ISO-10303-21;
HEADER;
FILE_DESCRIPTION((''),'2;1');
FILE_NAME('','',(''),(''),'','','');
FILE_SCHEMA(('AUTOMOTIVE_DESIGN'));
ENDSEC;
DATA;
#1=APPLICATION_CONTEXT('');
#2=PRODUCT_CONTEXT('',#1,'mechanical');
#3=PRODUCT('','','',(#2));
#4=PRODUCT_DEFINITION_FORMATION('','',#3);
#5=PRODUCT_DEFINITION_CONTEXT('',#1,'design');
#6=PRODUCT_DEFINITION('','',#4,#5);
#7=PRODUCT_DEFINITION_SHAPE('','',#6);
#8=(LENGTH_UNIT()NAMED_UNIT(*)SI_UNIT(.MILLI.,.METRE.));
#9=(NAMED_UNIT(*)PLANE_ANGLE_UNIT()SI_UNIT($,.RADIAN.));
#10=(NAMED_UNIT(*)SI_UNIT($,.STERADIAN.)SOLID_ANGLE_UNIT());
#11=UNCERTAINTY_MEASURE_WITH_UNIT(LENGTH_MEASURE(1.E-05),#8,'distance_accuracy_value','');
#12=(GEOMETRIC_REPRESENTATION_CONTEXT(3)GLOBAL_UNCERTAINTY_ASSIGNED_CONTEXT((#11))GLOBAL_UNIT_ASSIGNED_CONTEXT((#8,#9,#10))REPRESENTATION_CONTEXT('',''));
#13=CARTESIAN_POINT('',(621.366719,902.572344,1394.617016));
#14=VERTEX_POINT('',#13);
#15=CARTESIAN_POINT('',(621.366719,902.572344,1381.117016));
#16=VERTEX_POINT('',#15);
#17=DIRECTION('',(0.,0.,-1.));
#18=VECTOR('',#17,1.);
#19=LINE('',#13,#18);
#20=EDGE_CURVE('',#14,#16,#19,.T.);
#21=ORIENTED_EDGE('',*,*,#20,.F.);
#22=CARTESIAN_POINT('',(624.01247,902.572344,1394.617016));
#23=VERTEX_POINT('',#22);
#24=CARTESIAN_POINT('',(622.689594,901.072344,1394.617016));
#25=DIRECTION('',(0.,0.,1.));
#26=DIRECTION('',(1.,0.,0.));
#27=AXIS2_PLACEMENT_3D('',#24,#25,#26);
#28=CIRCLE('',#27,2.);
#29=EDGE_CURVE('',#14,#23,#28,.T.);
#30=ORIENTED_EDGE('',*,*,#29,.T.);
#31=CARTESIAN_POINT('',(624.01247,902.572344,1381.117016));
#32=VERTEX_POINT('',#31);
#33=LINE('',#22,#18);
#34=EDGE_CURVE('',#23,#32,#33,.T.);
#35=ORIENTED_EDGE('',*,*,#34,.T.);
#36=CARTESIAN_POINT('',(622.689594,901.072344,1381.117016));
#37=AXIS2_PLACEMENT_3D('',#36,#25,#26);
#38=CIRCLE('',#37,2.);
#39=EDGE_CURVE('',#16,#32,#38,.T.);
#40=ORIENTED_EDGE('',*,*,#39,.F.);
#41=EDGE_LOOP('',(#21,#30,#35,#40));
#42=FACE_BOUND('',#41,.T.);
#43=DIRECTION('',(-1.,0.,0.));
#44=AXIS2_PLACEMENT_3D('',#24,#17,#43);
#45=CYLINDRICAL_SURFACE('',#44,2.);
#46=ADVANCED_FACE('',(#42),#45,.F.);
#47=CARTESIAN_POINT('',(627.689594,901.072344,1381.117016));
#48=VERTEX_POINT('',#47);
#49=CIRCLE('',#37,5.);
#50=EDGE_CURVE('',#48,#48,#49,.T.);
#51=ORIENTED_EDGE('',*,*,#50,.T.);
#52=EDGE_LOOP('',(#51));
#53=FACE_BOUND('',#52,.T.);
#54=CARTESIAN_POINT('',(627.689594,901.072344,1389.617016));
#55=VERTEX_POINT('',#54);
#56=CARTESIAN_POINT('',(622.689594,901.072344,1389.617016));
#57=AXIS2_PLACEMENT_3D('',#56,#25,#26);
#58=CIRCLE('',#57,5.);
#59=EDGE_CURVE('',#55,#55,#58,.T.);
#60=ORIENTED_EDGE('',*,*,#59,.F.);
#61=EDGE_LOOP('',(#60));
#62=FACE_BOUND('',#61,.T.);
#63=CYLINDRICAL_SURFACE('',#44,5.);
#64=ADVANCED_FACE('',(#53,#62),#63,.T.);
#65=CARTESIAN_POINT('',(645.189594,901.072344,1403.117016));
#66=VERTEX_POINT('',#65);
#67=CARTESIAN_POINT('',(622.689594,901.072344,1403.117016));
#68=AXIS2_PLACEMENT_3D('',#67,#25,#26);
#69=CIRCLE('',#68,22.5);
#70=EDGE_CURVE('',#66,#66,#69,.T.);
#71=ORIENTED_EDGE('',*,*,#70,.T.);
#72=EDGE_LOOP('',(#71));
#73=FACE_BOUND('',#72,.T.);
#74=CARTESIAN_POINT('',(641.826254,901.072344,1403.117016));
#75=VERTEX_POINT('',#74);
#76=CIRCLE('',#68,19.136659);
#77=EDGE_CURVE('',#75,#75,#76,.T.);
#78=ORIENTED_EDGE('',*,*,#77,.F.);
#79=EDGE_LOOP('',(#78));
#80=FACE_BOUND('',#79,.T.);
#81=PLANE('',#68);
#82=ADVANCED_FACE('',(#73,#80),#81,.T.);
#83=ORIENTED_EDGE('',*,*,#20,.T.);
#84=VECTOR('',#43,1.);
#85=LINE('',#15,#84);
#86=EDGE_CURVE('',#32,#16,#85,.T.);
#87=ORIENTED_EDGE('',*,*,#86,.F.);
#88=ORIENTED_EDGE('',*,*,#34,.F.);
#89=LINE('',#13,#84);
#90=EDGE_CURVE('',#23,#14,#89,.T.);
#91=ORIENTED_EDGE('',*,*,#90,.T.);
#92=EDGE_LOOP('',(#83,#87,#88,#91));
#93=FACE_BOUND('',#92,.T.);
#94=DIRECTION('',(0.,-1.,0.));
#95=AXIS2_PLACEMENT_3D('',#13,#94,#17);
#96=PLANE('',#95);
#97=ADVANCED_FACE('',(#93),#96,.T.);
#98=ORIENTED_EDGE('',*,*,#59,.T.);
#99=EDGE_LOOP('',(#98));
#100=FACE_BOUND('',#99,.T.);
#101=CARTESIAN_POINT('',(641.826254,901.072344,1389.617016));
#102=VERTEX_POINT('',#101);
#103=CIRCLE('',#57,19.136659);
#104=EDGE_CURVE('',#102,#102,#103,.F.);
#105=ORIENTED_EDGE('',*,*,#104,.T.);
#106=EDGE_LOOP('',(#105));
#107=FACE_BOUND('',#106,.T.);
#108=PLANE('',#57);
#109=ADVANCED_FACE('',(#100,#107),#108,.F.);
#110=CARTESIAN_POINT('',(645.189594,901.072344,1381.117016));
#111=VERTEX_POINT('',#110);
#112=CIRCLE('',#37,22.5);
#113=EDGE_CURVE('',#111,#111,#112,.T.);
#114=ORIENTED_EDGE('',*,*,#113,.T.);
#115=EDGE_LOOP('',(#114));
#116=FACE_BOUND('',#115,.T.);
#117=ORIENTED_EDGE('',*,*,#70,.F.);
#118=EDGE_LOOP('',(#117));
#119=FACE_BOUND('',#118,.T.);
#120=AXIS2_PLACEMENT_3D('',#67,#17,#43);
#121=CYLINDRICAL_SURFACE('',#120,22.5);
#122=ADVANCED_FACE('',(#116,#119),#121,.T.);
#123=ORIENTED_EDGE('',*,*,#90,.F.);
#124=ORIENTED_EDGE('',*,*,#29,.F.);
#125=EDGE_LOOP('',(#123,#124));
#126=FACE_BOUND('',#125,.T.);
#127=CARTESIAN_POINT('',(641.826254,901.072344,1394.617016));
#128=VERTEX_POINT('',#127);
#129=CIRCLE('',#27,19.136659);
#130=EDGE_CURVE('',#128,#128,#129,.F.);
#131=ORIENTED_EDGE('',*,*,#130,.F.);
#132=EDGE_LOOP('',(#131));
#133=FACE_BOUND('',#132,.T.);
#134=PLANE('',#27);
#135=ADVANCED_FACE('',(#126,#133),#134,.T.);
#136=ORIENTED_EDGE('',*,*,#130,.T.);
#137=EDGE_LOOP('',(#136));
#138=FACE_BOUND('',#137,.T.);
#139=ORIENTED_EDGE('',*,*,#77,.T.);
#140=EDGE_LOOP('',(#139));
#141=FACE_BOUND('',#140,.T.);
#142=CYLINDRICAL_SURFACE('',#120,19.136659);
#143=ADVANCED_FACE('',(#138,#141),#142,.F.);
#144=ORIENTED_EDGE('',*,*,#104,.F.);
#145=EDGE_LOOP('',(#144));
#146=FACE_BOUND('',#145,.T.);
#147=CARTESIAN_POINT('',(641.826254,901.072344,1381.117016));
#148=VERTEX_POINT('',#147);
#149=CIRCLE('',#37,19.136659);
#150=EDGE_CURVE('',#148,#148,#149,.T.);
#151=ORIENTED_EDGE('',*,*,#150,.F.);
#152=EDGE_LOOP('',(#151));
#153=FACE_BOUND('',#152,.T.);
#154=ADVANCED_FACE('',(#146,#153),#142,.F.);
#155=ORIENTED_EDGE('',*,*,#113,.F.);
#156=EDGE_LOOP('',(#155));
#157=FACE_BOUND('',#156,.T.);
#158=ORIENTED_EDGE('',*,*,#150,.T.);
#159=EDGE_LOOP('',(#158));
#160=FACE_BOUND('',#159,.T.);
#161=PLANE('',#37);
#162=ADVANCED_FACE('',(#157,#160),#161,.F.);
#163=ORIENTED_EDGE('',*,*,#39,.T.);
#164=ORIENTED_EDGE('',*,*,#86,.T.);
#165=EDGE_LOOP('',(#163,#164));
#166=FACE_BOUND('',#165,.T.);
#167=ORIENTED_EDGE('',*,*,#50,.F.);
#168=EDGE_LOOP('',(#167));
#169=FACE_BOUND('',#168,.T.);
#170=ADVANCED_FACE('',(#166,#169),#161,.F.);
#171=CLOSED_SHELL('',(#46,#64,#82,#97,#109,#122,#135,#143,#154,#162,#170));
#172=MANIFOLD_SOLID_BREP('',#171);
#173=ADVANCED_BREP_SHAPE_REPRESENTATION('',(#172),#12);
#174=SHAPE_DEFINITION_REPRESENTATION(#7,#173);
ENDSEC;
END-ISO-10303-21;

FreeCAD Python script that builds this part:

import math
import FreeCAD as App
import Part
import Sketcher
from FreeCAD import Vector

doc = App.newDocument("Part")
params = doc.addObject("Spreadsheet::Sheet", "Params")
for row, (alias, value) in enumerate([
    ("sketch1_diameter", "10 mm"),
    ("sketch1_radius", "2 mm"),
    ("pad1_length", "13.5 mm"),
    ("sketch2_diameter", "45 mm"),
    ("pad2_length", "22 mm"),
    ("sketch3_diameter", "40 mm"),
    ("pad3_length", "5 mm"),
], start=1):
    params.set(f"A{row}", alias)
    params.set(f"B{row}", "=" + value)
    params.setAlias(f"B{row}", alias)

body = doc.addObject("PartDesign::Body", "Body")

# Sketch on XY plane
sketch1 = doc.addObject("Sketcher::SketchObject", "Sketch")
body.addObject(sketch1)
sketch1.AttachmentSupport = (doc.XY_Plane, [""])
sketch1.MapMode = "FlatFace"
sketch1.AttachmentOffset = App.Placement(Vector(0, 0, 1381.117016), App.Rotation())
sketch1.addGeometry([
    Part.Circle(Vector(622.7, 901.1, 0), Vector(0, 0, 1), 5),
    Part.ArcOfCircle(Part.Circle(Vector(622.7, 901.1, 0), Vector(0, 0, 1), 2), math.radians(131), math.radians(409)),
    Part.LineSegment(Vector(621.4, 902.6, 0), Vector(624, 902.6, 0)),
], False)
sketch1.addConstraint([
    Sketcher.Constraint("Coincident", 1, 1, 2, 1),
    Sketcher.Constraint("Coincident", 2, 2, 1, 2),
    Sketcher.Constraint("Horizontal", 2),
    Sketcher.Constraint("Coincident", 1, 3, 0, 3),
    Sketcher.Constraint("Diameter", 0, 10.0),
    Sketcher.Constraint("Radius", 1, 2.0),
    Sketcher.Constraint("DistanceY", 0, 3, 1, 1, 1.5),
    Sketcher.Constraint("DistanceX", -1, 1, 1, 1, 621.366719),
    Sketcher.Constraint("DistanceY", -1, 1, 0, 3, 901.072344),
])
sketch1.setExpression("Constraints[4]", "Params.sketch1_diameter")
sketch1.setExpression("Constraints[5]", "Params.sketch1_radius")
pad1 = doc.addObject("PartDesign::Pad", "Pad")
body.addObject(pad1)
pad1.Profile = sketch1
pad1.setExpression("Length", "Params.pad1_length")
body2 = doc.addObject("PartDesign::Body", "Body001")

# Sketch on XY plane
sketch2 = doc.addObject("Sketcher::SketchObject", "Sketch001")
body2.addObject(sketch2)
sketch2.AttachmentSupport = (doc.getObject("XY_Plane001"), [""])
sketch2.MapMode = "FlatFace"
sketch2.AttachmentOffset = App.Placement(Vector(0, 0, 1392.117016), App.Rotation())
sketch2.addGeometry([
    Part.Circle(Vector(623, 901, 0), Vector(0, 0, 1), 22),
    Part.Circle(Vector(623, 901, 0), Vector(0, 0, 1), 19),
], False)
sketch2.addConstraint([
    Sketcher.Constraint("Coincident", 1, 3, 0, 3),
    Sketcher.Constraint("Diameter", 0, 45.0),
    Sketcher.Constraint("Diameter", 1, 38.273319),
    Sketcher.Constraint("DistanceX", -1, 1, 0, 3, 622.689594),
    Sketcher.Constraint("DistanceY", -1, 1, 0, 3, 901.072344),
])
sketch2.setExpression("Constraints[1]", "Params.sketch2_diameter")
pad2 = doc.addObject("PartDesign::Pad", "Pad001")
body2.addObject(pad2)
pad2.Profile = sketch2
pad2.setExpression("Length", "Params.pad2_length")
pad2.Midplane = True
body.AllowCompound = True
doc.recompute()

boolean = doc.addObject("PartDesign::Boolean", "Boolean")
body.addObject(boolean)
boolean.Type = "Fuse"
boolean.addObjects([body2])

# Sketch on XY plane
sketch3 = doc.addObject("Sketcher::SketchObject", "Sketch002")
body.addObject(sketch3)
sketch3.AttachmentSupport = (doc.XY_Plane, [""])
sketch3.MapMode = "FlatFace"
sketch3.AttachmentOffset = App.Placement(Vector(0, 0, 1392.117016), App.Rotation())
sketch3.addGeometry([
    Part.Circle(Vector(622.7, 901.1, 0), Vector(0, 0, 1), 20),
    Part.Circle(Vector(622.7, 901.1, 0), Vector(0, 0, 1), 4.3),
], False)
sketch3.addConstraint([
    Sketcher.Constraint("Coincident", 1, 3, 0, 3),
    Sketcher.Constraint("Diameter", 0, 40.0),
    Sketcher.Constraint("Diameter", 1, 8.586895),
    Sketcher.Constraint("DistanceX", -1, 1, 0, 3, 622.689594),
    Sketcher.Constraint("DistanceY", -1, 1, 0, 3, 901.072344),
])
sketch3.setExpression("Constraints[1]", "Params.sketch3_diameter")
pad3 = doc.addObject("PartDesign::Pad", "Pad002")
body.addObject(pad3)
pad3.Profile = sketch3
pad3.setExpression("Length", "Params.pad3_length")
pad3.Midplane = True

doc.recompute()
